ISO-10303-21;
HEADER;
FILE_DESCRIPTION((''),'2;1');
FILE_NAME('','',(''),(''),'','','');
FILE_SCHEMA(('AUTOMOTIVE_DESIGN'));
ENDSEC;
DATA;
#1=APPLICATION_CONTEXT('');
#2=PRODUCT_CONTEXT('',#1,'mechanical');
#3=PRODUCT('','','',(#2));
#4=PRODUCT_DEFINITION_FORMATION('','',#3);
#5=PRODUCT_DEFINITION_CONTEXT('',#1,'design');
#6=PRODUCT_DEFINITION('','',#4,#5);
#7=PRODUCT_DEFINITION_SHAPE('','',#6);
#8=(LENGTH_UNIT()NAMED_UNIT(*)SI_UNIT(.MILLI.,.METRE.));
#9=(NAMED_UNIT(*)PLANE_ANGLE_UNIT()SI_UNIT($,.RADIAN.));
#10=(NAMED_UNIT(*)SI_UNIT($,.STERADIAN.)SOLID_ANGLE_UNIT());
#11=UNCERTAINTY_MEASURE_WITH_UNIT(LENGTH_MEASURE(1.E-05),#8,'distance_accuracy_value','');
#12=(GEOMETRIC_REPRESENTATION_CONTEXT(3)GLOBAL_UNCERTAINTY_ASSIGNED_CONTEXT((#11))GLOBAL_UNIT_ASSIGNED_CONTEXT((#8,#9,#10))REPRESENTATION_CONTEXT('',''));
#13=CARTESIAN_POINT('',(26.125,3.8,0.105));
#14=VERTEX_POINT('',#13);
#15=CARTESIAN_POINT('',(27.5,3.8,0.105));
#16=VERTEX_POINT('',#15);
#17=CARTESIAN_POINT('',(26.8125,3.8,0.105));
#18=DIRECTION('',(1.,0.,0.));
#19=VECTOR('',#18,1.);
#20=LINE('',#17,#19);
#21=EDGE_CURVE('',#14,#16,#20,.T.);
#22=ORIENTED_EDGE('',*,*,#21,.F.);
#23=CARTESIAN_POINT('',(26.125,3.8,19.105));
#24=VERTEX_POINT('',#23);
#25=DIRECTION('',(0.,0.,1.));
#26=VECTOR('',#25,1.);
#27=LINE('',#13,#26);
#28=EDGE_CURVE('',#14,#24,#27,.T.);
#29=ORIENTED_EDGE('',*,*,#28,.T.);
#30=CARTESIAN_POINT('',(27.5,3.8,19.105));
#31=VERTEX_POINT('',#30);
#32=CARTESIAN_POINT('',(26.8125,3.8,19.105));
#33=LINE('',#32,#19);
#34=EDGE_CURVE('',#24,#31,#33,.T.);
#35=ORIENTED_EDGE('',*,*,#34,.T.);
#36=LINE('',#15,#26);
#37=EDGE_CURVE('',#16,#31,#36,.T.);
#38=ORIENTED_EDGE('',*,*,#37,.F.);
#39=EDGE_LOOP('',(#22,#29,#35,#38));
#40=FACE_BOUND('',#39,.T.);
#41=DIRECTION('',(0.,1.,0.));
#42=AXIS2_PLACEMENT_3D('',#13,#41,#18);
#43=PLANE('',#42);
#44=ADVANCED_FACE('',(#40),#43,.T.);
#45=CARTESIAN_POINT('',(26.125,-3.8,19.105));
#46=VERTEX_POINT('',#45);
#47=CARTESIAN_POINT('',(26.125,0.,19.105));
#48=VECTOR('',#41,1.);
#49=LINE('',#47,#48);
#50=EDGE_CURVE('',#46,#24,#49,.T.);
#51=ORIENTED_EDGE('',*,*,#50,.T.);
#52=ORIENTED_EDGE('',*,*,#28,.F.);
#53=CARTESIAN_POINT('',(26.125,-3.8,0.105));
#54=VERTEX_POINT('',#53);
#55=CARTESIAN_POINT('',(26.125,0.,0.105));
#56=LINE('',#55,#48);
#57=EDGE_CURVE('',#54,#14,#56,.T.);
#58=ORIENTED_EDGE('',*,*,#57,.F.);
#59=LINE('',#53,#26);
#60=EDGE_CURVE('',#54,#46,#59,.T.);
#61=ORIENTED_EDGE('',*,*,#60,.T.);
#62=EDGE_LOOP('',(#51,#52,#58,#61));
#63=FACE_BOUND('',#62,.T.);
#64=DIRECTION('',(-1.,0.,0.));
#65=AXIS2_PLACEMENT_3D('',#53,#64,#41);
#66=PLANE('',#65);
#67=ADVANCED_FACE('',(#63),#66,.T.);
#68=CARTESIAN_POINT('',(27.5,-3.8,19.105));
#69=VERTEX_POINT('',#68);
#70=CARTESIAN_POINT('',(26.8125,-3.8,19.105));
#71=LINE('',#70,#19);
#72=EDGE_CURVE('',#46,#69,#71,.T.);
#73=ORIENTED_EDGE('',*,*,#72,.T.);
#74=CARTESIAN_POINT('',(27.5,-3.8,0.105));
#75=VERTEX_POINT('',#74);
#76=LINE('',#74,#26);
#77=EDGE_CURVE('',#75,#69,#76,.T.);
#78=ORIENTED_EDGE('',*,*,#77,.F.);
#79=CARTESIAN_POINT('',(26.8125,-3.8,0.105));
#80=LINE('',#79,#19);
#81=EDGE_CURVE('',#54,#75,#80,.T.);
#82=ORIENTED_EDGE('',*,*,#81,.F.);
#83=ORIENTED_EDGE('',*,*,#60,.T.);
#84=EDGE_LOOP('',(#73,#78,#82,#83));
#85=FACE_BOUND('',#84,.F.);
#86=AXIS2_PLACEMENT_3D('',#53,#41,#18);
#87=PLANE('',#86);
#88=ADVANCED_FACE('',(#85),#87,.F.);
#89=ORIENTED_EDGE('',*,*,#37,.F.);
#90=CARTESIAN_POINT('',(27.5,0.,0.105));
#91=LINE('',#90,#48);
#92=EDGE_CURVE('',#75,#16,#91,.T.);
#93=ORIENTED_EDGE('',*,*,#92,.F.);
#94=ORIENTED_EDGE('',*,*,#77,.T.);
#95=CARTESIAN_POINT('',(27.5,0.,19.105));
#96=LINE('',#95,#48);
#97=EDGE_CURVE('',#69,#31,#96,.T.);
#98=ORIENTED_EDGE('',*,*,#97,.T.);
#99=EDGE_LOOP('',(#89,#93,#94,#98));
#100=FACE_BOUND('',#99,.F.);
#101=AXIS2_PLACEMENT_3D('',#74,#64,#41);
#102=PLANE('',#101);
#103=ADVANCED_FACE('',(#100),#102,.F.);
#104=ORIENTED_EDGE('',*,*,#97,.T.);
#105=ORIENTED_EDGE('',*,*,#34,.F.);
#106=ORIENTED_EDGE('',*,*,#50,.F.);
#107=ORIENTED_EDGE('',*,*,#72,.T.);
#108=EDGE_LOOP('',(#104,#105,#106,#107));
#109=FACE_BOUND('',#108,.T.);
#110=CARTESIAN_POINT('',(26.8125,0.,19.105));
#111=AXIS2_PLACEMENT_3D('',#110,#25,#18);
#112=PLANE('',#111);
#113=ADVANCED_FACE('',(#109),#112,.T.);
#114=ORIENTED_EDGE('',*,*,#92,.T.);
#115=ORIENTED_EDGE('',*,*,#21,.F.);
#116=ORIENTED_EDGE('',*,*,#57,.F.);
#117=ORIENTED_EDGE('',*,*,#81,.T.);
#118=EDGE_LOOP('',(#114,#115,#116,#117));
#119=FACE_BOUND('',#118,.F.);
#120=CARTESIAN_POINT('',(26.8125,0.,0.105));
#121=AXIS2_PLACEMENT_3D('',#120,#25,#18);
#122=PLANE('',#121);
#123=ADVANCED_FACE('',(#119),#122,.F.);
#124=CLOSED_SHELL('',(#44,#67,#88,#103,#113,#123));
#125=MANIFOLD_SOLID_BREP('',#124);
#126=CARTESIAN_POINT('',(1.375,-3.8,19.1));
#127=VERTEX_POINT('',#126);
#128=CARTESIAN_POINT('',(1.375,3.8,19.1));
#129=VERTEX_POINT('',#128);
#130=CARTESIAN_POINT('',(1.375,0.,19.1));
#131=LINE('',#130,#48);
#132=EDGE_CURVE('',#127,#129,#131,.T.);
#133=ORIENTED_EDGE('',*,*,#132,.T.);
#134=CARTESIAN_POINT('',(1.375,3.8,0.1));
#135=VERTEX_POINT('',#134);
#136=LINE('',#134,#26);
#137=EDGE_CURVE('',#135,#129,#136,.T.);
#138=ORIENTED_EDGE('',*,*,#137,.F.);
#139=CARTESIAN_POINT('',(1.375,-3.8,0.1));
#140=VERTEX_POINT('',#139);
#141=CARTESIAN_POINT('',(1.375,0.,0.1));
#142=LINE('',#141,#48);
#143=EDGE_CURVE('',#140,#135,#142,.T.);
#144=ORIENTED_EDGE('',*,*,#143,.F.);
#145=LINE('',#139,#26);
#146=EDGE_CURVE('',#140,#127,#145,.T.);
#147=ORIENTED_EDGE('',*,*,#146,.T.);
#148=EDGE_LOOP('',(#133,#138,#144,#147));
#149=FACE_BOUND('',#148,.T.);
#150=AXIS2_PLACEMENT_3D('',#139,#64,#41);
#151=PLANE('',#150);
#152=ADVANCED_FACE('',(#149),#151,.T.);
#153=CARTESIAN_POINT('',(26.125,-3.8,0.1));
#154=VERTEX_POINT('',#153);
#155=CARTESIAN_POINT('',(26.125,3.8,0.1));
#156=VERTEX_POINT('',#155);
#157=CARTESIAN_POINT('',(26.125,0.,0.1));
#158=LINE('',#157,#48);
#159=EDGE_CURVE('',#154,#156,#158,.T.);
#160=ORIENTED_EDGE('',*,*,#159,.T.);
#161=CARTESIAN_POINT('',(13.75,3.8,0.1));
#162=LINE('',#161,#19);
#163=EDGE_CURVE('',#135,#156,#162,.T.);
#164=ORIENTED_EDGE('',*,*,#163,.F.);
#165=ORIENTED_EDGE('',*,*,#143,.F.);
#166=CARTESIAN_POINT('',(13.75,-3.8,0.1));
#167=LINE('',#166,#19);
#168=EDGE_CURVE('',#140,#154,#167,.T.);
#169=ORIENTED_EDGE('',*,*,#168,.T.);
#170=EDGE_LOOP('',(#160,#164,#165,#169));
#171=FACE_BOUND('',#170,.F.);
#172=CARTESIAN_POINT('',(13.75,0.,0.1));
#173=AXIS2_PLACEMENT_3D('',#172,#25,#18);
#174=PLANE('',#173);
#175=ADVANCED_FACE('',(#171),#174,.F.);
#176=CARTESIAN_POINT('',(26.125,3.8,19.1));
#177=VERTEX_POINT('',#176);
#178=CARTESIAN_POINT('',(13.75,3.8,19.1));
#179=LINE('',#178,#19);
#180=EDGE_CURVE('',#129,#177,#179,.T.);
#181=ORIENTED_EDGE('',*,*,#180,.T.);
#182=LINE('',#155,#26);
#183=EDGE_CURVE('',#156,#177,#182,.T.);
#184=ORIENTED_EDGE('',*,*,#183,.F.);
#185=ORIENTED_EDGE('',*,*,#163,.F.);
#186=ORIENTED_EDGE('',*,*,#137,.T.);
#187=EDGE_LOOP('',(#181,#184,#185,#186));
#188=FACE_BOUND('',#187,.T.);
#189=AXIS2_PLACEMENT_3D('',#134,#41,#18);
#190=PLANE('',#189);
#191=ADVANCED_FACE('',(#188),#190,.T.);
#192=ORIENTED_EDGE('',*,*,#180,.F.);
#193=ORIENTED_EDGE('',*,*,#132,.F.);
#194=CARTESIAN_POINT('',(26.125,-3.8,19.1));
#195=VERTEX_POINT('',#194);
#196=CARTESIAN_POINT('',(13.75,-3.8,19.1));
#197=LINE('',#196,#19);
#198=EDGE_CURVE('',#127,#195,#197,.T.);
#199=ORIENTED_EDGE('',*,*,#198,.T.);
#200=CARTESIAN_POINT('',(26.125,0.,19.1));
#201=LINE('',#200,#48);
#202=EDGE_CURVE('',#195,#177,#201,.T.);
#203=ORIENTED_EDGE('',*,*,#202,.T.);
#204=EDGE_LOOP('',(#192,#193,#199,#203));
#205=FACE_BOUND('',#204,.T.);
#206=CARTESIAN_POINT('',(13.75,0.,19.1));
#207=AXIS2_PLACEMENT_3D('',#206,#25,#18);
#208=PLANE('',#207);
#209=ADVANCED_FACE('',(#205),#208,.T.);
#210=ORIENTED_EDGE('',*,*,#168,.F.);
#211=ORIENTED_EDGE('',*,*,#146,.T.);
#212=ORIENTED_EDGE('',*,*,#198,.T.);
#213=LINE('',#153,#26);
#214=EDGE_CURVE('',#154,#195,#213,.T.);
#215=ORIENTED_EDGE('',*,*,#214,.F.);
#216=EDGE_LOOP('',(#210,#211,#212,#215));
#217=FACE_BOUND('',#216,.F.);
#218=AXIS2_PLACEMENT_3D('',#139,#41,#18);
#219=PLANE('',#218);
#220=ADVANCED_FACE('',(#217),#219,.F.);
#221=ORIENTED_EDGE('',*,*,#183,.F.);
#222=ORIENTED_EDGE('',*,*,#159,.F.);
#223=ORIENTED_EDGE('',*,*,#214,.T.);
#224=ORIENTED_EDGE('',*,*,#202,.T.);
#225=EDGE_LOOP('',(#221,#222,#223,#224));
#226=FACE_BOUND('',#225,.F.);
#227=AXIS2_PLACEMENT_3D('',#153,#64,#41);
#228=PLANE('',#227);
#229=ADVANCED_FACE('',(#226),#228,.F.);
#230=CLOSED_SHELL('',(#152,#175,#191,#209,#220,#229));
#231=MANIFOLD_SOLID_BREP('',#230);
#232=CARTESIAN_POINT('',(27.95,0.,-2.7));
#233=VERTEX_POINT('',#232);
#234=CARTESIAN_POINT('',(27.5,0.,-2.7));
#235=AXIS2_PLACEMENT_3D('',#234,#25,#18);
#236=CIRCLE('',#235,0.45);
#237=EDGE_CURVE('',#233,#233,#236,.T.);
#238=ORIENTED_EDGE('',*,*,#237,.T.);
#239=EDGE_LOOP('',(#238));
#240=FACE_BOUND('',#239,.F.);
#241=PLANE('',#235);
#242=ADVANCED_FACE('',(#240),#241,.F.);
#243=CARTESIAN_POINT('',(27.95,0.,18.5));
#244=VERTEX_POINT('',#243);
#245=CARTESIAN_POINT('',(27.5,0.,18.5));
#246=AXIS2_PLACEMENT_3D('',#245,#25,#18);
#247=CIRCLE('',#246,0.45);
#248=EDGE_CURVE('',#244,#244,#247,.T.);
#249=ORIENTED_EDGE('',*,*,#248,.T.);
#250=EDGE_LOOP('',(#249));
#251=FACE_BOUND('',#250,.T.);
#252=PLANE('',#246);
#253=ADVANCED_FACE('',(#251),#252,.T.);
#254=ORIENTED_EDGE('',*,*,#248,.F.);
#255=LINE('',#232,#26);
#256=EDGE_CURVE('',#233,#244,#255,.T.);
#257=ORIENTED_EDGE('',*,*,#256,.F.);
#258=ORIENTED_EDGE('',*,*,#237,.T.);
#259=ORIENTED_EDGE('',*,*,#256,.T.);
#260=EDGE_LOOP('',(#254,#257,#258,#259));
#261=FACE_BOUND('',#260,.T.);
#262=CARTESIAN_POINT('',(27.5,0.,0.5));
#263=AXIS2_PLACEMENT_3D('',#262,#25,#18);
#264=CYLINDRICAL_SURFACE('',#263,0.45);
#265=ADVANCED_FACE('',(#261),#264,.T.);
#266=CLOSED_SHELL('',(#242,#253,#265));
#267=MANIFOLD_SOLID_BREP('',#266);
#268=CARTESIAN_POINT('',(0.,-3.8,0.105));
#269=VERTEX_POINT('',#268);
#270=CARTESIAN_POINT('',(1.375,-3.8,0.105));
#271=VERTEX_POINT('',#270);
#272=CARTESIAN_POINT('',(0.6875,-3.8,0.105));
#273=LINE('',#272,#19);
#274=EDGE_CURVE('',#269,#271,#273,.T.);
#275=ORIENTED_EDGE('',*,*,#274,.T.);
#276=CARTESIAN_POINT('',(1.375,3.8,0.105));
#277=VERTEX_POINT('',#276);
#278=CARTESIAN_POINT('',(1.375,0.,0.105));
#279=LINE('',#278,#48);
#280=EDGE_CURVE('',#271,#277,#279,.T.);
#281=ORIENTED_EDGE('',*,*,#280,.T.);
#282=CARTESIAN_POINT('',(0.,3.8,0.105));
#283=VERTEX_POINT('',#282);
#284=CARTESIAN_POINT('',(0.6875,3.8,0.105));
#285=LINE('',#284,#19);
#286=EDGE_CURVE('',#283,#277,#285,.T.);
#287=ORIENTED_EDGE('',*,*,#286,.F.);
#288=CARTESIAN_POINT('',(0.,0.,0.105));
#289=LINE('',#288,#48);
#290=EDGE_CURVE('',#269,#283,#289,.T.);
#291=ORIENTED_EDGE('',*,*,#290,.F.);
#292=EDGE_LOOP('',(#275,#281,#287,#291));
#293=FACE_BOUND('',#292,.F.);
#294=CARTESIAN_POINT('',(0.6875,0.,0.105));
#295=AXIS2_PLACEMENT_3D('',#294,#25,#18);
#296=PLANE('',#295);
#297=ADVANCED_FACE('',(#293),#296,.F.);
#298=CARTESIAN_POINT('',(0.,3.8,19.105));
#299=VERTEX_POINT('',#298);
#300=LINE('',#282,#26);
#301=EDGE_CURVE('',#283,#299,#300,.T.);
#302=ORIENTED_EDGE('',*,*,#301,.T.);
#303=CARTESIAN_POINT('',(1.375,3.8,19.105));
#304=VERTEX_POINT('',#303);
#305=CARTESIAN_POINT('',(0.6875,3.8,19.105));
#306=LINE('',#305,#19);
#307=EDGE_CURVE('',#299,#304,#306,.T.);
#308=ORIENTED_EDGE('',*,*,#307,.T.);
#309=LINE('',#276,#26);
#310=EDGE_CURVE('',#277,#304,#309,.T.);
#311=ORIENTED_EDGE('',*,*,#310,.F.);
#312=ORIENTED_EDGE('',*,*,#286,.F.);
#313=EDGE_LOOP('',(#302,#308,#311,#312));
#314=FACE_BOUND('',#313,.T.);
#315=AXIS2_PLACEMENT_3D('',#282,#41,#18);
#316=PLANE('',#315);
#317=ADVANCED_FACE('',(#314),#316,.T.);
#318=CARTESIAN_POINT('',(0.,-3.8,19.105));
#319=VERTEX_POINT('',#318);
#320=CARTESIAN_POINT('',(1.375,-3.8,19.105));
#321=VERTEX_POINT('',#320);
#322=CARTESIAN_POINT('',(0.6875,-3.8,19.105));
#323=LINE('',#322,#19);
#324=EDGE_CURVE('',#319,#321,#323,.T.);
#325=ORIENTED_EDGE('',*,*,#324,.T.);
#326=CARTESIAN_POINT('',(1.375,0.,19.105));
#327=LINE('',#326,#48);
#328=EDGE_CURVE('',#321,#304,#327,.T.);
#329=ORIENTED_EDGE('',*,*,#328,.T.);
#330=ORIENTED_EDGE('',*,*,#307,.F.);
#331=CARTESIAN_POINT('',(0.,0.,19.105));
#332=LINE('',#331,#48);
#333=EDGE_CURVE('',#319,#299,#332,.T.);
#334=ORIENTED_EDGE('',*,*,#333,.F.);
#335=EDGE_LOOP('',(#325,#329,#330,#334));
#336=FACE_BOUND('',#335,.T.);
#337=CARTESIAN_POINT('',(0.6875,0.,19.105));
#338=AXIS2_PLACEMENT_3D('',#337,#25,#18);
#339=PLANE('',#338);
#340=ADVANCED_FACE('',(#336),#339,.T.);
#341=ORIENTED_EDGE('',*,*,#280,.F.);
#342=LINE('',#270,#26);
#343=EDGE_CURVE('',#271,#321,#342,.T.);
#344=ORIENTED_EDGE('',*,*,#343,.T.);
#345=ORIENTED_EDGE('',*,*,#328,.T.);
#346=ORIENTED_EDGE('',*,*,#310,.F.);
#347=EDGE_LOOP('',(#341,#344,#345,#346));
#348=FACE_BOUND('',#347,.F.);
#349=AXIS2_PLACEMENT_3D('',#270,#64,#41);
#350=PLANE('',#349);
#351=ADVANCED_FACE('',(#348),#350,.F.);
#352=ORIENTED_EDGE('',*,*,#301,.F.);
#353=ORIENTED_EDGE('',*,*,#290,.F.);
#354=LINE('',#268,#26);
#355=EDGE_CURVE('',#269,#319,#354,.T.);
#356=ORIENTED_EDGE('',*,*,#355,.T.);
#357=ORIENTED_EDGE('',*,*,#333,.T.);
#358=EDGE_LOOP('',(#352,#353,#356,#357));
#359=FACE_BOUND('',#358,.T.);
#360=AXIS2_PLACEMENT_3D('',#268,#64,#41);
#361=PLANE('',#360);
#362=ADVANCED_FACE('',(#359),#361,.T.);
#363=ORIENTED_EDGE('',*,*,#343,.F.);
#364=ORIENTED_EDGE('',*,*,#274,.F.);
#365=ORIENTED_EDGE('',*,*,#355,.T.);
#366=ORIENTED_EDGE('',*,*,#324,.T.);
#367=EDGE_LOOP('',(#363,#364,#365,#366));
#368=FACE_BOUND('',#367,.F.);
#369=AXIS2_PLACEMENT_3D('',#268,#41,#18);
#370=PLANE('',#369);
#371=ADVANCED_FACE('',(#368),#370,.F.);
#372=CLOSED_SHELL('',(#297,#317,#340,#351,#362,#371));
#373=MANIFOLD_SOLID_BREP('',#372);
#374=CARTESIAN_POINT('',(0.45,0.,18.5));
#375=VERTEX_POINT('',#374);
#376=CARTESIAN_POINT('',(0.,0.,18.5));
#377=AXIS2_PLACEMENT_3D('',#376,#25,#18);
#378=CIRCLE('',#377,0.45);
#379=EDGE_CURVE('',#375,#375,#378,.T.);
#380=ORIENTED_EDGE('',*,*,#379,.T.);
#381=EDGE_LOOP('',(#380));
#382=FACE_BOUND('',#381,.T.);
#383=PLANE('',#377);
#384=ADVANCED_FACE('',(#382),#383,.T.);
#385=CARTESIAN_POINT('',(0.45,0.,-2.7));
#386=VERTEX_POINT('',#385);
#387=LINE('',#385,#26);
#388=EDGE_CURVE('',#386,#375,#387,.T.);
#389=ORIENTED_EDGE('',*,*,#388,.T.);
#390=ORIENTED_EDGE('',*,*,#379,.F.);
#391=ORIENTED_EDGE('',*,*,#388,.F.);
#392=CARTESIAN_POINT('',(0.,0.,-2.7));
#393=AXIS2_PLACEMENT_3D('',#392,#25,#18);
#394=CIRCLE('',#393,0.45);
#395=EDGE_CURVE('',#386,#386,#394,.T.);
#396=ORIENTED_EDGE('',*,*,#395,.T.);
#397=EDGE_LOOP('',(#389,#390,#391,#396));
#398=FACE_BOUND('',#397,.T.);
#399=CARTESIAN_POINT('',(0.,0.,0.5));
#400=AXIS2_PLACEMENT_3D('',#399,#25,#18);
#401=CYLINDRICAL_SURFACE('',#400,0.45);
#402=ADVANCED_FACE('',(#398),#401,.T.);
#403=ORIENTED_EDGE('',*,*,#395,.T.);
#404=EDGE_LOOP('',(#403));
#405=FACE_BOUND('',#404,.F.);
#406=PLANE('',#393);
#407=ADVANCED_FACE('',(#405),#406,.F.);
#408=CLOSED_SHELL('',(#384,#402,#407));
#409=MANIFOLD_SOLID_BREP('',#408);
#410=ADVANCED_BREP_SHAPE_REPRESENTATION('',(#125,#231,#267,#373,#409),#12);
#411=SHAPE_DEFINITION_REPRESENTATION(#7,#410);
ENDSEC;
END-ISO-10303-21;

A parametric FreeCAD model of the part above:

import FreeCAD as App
import Part
import Sketcher

V = App.Vector

doc = App.newDocument("Part")
params = doc.addObject("Spreadsheet::Sheet", "Params")
for row, (alias, value) in enumerate([
    ("sketch1_height", "7.6 mm"),
    ("sketch1_width", "24.75 mm"),
    ("pad1_length", "19 mm"),
    ("sketch2_diameter", "0.9 mm"),
    ("pad2_length", "18 mm"),
    ("pad2_length2", "3.2 mm"),
    ("sketch3_height", "7.6 mm"),
    ("pad3_length", "19 mm"),
], start=1):
    params.set(f"A{row}", alias)
    params.set(f"B{row}", "=" + value)
    params.setAlias(f"B{row}", alias)

body = doc.addObject("PartDesign::Body", "Body")

# Sketch on XY plane
sketch1 = doc.addObject("Sketcher::SketchObject", "Sketch")
body.addObject(sketch1)
sketch1.AttachmentSupport = (doc.XY_Plane, [""])
sketch1.MapMode = "FlatFace"
sketch1.AttachmentOffset = App.Placement(V(0, 0, 0.1), App.Rotation())
sketch1.addGeometry([
    Part.LineSegment(V(1, 4, 0), V(1, -4, 0)),
    Part.LineSegment(V(1, -4, 0), V(26, -4, 0)),
    Part.LineSegment(V(26, -4, 0), V(26, 4, 0)),
    Part.LineSegment(V(26, 4, 0), V(1, 4, 0)),
], False)
sketch1.addConstraint([
    Sketcher.Constraint("Coincident", 0, 2, 1, 1),
    Sketcher.Constraint("Coincident", 1, 2, 2, 1),
    Sketcher.Constraint("Coincident", 2, 2, 3, 1),
    Sketcher.Constraint("Coincident", 3, 2, 0, 1),
    Sketcher.Constraint("Vertical", 0),
    Sketcher.Constraint("Horizontal", 1),
    Sketcher.Constraint("Vertical", 2),
    Sketcher.Constraint("Horizontal", 3),
    Sketcher.Constraint("DistanceY", 0, 2, 0, 1, 7.6),
    Sketcher.Constraint("DistanceX", 1, 1, 1, 2, 24.75),
    Sketcher.Constraint("DistanceY", 0, 2, -1, 1, 3.8),
    Sketcher.Constraint("DistanceX", -1, 1, 0, 2, 1.375),
])
sketch1.setExpression("Constraints[8]", "Params.sketch1_height")
sketch1.setExpression("Constraints[9]", "Params.sketch1_width")
pad1 = doc.addObject("PartDesign::Pad", "Pad")
body.addObject(pad1)
pad1.Profile = sketch1
pad1.setExpression("Length", "Params.pad1_length")
body2 = doc.addObject("PartDesign::Body", "Body001")
body2.AllowCompound = True

# Sketch on XY plane
sketch2 = doc.addObject("Sketcher::SketchObject", "Sketch001")
body2.addObject(sketch2)
sketch2.AttachmentSupport = (doc.getObject("XY_Plane001"), [""])
sketch2.MapMode = "FlatFace"
sketch2.AttachmentOffset = App.Placement(V(0, 0, 0.5), App.Rotation())
sketch2.addGeometry([
    Part.Circle(V(0, 0, 0), V(0, 0, 1), 0.45),
    Part.Circle(V(27.5, 0, 0), V(0, 0, 1), 0.45),
], False)
sketch2.addConstraint([
    Sketcher.Constraint("Coincident", 0, 3, -1, 1),
    Sketcher.Constraint("Equal", 0, 1),
    Sketcher.Constraint("PointOnObject", 1, 3, -1),
    Sketcher.Constraint("Diameter", 0, 0.9),
    Sketcher.Constraint("DistanceX", -1, 1, 1, 3, 27.5),
])
sketch2.setExpression("Constraints[3]", "Params.sketch2_diameter")
pad2 = doc.addObject("PartDesign::Pad", "Pad001")
body2.addObject(pad2)
pad2.Profile = sketch2
pad2.Type = "TwoLengths"
pad2.setExpression("Length", "Params.pad2_length")
pad2.setExpression("Length2", "Params.pad2_length2")
body3 = doc.addObject("PartDesign::Body", "Body002")
body3.AllowCompound = True

# Sketch on XY plane
sketch3 = doc.addObject("Sketcher::SketchObject", "Sketch002")
body3.addObject(sketch3)
sketch3.AttachmentSupport = (doc.getObject("XY_Plane002"), [""])
sketch3.MapMode = "FlatFace"
sketch3.AttachmentOffset = App.Placement(V(0, 0, 0.105), App.Rotation())
sketch3.addGeometry([
    Part.LineSegment(V(0, 3.8, 0), V(0, -3.8, 0)),  # 0
    Part.LineSegment(V(0, -3.8, 0), V(1.4, -3.8, 0)),  # 1
    Part.LineSegment(V(1.4, -3.8, 0), V(1.4, 3.8, 0)),  # 2
    Part.LineSegment(V(1.4, 3.8, 0), V(0, 3.8, 0)),  # 3
    Part.LineSegment(V(26.1, 3.8, 0), V(26.1, -3.8, 0)),  # 4
    Part.LineSegment(V(26.1, -3.8, 0), V(27.5, -3.8, 0)),  # 5
    Part.LineSegment(V(27.5, -3.8, 0), V(27.5, 3.8, 0)),  # 6
    Part.LineSegment(V(27.5, 3.8, 0), V(26.1, 3.8, 0)),  # 7
], False)
sketch3.addConstraint([
    Sketcher.Constraint("Coincident", 0, 2, 1, 1),
    Sketcher.Constraint("Coincident", 1, 2, 2, 1),
    Sketcher.Constraint("Coincident", 2, 2, 3, 1),
    Sketcher.Constraint("Coincident", 3, 2, 0, 1),
    Sketcher.Constraint("Coincident", 4, 2, 5, 1),
    Sketcher.Constraint("Coincident", 5, 2, 6, 1),
    Sketcher.Constraint("Coincident", 6, 2, 7, 1),
    Sketcher.Constraint("Coincident", 7, 2, 4, 1),
    Sketcher.Constraint("Vertical", 0),
    Sketcher.Constraint("Horizontal", 1),
    Sketcher.Constraint("Vertical", 2),
    Sketcher.Constraint("Horizontal", 3),
    Sketcher.Constraint("Vertical", 4),
    Sketcher.Constraint("Horizontal", 5),
    Sketcher.Constraint("Vertical", 6),
    Sketcher.Constraint("Horizontal", 7),
    Sketcher.Constraint("Symmetric", 0, 2, 3, 2, -1, 1),
    Sketcher.Constraint("Horizontal", 1, 2, 4, 2),
    Sketcher.Constraint("Horizontal", 3, 2, 6, 2),
    Sketcher.Constraint("Equal", 3, 5),
    Sketcher.Constraint("DistanceY", 0, 2, 0, 1, 7.6),
    Sketcher.Constraint("DistanceX", -1, 1, 5, 2, 27.5),
    Sketcher.Constraint("DistanceX", 1, 1, 1, 2, 1.375),
])
sketch3.setExpression("Constraints[20]", "Params.sketch3_height")
pad3 = doc.addObject("PartDesign::Pad", "Pad002")
body3.addObject(pad3)
pad3.Profile = sketch3
pad3.setExpression("Length", "Params.pad3_length")

doc.recompute()
